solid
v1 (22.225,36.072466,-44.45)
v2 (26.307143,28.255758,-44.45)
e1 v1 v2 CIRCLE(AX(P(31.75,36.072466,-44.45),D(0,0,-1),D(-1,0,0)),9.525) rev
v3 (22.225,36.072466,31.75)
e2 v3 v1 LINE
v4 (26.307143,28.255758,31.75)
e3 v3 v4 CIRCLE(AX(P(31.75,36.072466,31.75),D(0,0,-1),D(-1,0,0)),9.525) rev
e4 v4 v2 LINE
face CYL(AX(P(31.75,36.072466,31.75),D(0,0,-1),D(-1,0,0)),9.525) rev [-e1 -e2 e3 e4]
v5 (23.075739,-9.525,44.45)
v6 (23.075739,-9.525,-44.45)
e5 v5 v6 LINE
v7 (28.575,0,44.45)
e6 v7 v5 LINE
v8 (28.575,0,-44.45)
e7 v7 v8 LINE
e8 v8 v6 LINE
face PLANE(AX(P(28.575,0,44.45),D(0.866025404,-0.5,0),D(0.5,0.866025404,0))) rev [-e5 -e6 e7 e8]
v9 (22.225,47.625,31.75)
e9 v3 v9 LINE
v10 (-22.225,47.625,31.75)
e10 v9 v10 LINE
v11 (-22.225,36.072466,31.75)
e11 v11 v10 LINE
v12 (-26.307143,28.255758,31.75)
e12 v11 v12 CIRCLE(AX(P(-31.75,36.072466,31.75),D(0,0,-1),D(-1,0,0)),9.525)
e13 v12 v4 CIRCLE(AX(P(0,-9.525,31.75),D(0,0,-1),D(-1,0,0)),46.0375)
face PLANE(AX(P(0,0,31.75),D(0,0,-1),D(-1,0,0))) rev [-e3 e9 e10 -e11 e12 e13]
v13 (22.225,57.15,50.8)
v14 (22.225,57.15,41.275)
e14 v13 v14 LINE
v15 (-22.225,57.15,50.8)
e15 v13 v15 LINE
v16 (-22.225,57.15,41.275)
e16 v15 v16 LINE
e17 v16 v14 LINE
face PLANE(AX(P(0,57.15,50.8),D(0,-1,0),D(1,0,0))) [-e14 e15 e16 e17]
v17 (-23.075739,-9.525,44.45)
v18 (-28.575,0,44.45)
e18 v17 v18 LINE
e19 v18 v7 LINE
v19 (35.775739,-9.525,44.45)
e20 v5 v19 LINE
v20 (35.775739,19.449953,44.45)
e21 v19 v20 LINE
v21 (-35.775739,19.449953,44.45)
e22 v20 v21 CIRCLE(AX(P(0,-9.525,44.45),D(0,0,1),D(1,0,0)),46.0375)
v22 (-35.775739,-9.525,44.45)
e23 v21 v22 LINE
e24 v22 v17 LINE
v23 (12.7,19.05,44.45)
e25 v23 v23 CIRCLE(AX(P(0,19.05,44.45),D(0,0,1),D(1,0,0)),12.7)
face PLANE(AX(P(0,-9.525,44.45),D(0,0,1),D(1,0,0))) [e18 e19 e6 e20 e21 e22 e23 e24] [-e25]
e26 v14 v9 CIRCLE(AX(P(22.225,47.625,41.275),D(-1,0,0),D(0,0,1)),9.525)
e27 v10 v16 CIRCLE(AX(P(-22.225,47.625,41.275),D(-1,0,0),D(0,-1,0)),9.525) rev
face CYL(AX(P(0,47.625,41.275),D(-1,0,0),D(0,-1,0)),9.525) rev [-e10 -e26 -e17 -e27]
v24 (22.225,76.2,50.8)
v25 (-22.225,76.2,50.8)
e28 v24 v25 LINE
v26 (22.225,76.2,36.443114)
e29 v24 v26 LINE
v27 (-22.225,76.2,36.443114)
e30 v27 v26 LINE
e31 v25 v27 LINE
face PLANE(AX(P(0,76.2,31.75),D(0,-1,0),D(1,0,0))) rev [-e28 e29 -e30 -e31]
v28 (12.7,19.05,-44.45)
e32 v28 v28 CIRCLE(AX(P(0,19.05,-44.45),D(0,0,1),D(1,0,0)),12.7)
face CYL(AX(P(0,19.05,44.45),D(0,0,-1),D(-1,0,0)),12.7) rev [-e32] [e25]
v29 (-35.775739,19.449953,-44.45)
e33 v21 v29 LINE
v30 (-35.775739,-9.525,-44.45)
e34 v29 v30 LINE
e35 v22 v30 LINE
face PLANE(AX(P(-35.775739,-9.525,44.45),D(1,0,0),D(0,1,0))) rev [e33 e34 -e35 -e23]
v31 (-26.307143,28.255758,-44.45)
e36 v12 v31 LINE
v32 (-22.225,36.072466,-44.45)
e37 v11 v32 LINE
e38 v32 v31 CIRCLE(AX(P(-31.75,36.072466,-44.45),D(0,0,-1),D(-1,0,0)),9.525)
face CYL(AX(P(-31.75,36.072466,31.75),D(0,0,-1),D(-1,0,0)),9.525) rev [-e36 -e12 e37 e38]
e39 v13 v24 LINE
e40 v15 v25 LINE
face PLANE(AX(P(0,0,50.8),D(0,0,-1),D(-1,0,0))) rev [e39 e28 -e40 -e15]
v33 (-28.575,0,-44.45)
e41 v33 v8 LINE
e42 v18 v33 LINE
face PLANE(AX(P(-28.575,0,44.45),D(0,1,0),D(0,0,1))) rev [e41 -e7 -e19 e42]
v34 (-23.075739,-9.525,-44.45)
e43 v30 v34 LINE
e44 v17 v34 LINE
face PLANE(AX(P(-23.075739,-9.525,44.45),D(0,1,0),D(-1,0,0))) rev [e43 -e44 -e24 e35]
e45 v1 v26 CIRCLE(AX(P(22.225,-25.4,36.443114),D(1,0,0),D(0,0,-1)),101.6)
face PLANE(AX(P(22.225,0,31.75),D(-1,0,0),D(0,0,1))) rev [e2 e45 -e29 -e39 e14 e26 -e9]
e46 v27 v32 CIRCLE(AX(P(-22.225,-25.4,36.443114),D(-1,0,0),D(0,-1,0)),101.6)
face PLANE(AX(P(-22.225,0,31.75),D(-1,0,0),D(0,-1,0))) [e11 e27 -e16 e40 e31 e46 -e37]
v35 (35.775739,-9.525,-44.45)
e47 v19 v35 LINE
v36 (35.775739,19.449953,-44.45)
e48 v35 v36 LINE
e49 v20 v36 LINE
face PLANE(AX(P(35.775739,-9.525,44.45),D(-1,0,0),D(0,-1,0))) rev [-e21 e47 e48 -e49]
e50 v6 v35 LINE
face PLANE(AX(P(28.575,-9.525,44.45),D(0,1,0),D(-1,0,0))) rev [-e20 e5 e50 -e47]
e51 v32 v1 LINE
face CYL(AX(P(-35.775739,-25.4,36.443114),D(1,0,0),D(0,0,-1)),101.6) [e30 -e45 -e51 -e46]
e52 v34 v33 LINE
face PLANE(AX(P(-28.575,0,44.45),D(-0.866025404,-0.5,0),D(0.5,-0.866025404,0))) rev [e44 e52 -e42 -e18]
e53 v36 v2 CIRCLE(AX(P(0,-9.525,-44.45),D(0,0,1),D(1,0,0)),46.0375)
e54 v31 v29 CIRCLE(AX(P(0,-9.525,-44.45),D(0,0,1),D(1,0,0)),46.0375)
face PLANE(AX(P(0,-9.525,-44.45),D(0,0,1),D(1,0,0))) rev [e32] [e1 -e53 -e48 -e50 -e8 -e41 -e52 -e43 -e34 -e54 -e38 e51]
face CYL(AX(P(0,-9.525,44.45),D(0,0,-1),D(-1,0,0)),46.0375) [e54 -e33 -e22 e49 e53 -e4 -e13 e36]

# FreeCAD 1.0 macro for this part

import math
import FreeCAD as App
import Part
import Sketcher

V = App.Vector
Q = App.Units.Quantity


def edges_at(feature, points):
    """Names of the edges that pass closest to the given points."""
    edges = feature.Shape.Edges
    near = lambda p: min(range(len(edges)), key=lambda i: edges[i].distToShape(Part.Vertex(*p))[0])
    return sorted({f"Edge{near(p) + 1}" for p in points})


def add_polygon(sketch, points):
    """Adds a closed chain of lines whose ends are joined by coincident constraints."""
    first, n = sketch.GeometryCount, len(points)
    for a, b in zip(points, points[1:] + points[:1]):
        sketch.addGeometry(Part.LineSegment(App.Vector(*a, 0), App.Vector(*b, 0)), False)
    for i in range(n):
        sketch.addConstraint(Sketcher.Constraint("Coincident", first + i, 2, first + (i + 1) % n, 1))

doc = App.newDocument("Part")
body = doc.addObject("PartDesign::Body", "Body")

# Sketch on XY plane
sketch1 = body.newObject("Sketcher::SketchObject", "Sketch")
sketch1.AttachmentSupport = (doc.getObject("XY_Plane"), [""])
sketch1.MapMode = "FlatFace"
sketch1.addGeometry([
    Part.LineSegment(V(-29, 0, 0), V(29, 0, 0)),  # 0
    Part.LineSegment(V(29, 0, 0), V(23, -10, 0)),  # 1
    Part.LineSegment(V(23, -10, 0), V(36, -10, 0)),  # 2
    Part.LineSegment(V(36, -10, 0), V(36, 19, 0)),  # 3
    Part.ArcOfCircle(Part.Circle(V(0, -10, 0), V(0, 0, 1), 46), math.radians(39), math.radians(141)),  # 4
    Part.LineSegment(V(-36, 19, 0), V(-36, -10, 0)),  # 5
    Part.LineSegment(V(-36, -10, 0), V(-23, -10, 0)),  # 6
    Part.LineSegment(V(-23, -10, 0), V(-29, 0, 0)),  # 7
    Part.Circle(V(0, 19, 0), V(0, 0, 1), 13),  # 8
], False)
sketch1.addConstraint([
    Sketcher.Constraint("Coincident", 0, 2, 1, 1),
    Sketcher.Constraint("Coincident", 1, 2, 2, 1),
    Sketcher.Constraint("Coincident", 2, 2, 3, 1),
    Sketcher.Constraint("Coincident", 3, 2, 4, 1),
    Sketcher.Constraint("Coincident", 4, 2, 5, 1),
    Sketcher.Constraint("Coincident", 5, 2, 6, 1),
    Sketcher.Constraint("Coincident", 6, 2, 7, 1),
    Sketcher.Constraint("Coincident", 7, 2, 0, 1),
    Sketcher.Constraint("Horizontal", 0),
    Sketcher.Constraint("Horizontal", 2),
    Sketcher.Constraint("Vertical", 3),
    Sketcher.Constraint("Vertical", 5),
    Sketcher.Constraint("Horizontal", 6),
    Sketcher.Constraint("Symmetric", 0, 2, 7, 2, -1, 1),
    Sketcher.Constraint("Symmetric", 3, 2, 4, 2, -2),
    Sketcher.Constraint("Symmetric", 1, 2, 6, 2, -2),
    Sketcher.Constraint("PointOnObject", 8, 3, -2),
    Sketcher.Constraint("Horizontal", 4, 3, 1, 2),
    Sketcher.Constraint("Diameter", 8, Q("1 in")),
    Sketcher.Constraint("DistanceX", 2, 1, 2, 2, Q("0.5 in")),
    Sketcher.Constraint("Angle", 1, Q("-120 deg")),
    Sketcher.Constraint("Radius", 4, Q("1.8125 in")),
    Sketcher.Constraint("DistanceX", 0, 1, 0, 2, Q("2.25 in")),
    Sketcher.Constraint("DistanceY", -1, 1, 8, 3, Q("0.75 in")),
    Sketcher.Constraint("DistanceY", 4, 3, -1, 1, Q("0.375 in")),
])
pad1 = body.newObject("PartDesign::Pad", "Pad")
pad1.Profile = sketch1
pad1.Length = Q("3.5 in")
pad1.Midplane = True

# Sketch on XY plane
sketch2 = body.newObject("Sketcher::SketchObject", "Sketch001")
sketch2.AttachmentSupport = (doc.getObject("XY_Plane"), [""])
sketch2.MapMode = "FlatFace"
sketch2.AttachmentOffset = App.Placement(V(0, 0, -1.75 * 25.4), App.Rotation())
sketch2.addGeometry([
    Part.ArcOfCircle(Part.Circle(V(-32, 36, 0), V(0, 0, 1), 10), math.radians(-55), math.radians(0)),  # 0
    Part.LineSegment(V(-22, 36, 0), V(-22, 76, 0)),  # 1
    Part.LineSegment(V(-22, 76, 0), V(22, 76, 0)),  # 2
    Part.LineSegment(V(22, 76, 0), V(22, 36, 0)),  # 3
    Part.ArcOfCircle(Part.Circle(V(32, 36, 0), V(0, 0, 1), 10), math.radians(180), math.radians(235)),  # 4
    Part.ArcOfCircle(Part.Circle(V(0, -10, 0), V(0, 0, 1), 46), math.radians(55), math.radians(125)),  # 5
], False)
sketch2.addConstraint([
    Sketcher.Constraint("Tangent", 0, 2, 1, 1),
    Sketcher.Constraint("Coincident", 1, 2, 2, 1),
    Sketcher.Constraint("Coincident", 2, 2, 3, 1),
    Sketcher.Constraint("Tangent", 3, 2, 4, 1),
    Sketcher.Constraint("Tangent", 4, 2, 5, 1),
    Sketcher.Constraint("Tangent", 5, 2, 0, 1),
    Sketcher.Constraint("Vertical", 1),
    Sketcher.Constraint("Horizontal", 2),
    Sketcher.Constraint("Vertical", 3),
    Sketcher.Constraint("Equal", 0, 4),
    Sketcher.Constraint("Symmetric", 0, 3, 4, 3, -2),
    Sketcher.Constraint("DistanceY", -1, 1, 1, 2, Q("3 in")),
    Sketcher.Constraint("Radius", 0, Q("0.375 in")),
    Sketcher.Constraint("Radius", 5, Q("1.8125 in")),
    Sketcher.Constraint("DistanceX", 2, 1, 2, 2, Q("1.75 in")),
    Sketcher.Constraint("DistanceY", 5, 3, -1, 1, Q("0.375 in")),
])
pad2 = body.newObject("PartDesign::Pad", "Pad001")
pad2.Profile = sketch2
pad2.Length = Q("3 in")

# Sketch on XY plane
sketch3 = body.newObject("Sketcher::SketchObject", "Sketch002")
sketch3.AttachmentSupport = (doc.getObject("XY_Plane"), [""])
sketch3.MapMode = "FlatFace"
sketch3.AttachmentOffset = App.Placement(V(0, 0, -1.75 * 25.4), App.Rotation())
add_polygon(sketch3, [(22, 76), (22, 57), (-22, 57), (-22, 76)])  # lines 0-3
sketch3.addConstraint([
    Sketcher.Constraint("Vertical", 0),
    Sketcher.Constraint("Horizontal", 1),
    Sketcher.Constraint("Vertical", 2),
    Sketcher.Constraint("Horizontal", 3),
    Sketcher.Constraint("DistanceY", -1, 1, 2, 2, Q("3 in")),
    Sketcher.Constraint("DistanceX", 1, 2, 1, 1, Q("1.75 in")),
    Sketcher.Constraint("DistanceY", 0, 2, 0, 1, Q("0.75 in")),
    Sketcher.Constraint("DistanceX", -1, 1, 0, 2, Q("0.875 in")),
])
pad3 = body.newObject("PartDesign::Pad", "Pad002")
pad3.Profile = sketch3
pad3.Length = Q("3.75 in")

# Sketch on YZ plane
sketch4 = body.newObject("Sketcher::SketchObject", "Sketch003")
sketch4.AttachmentSupport = (doc.getObject("YZ_Plane"), [""])
sketch4.MapMode = "FlatFace"
sketch4.AttachmentOffset = App.Placement(V(0, 0, 0.875 * 25.4), App.Rotation())
sketch4.addGeometry([
    Part.LineSegment(V(76, -44, 0), V(76, 36, 0)),
    Part.ArcOfCircle(Part.Circle(V(-25, 36, 0), V(0, 0, 1), 102), math.radians(-53), math.radians(0)),
    Part.LineSegment(V(36, -44, 0), V(76, -44, 0)),
], False)
sketch4.addConstraint([
    Sketcher.Constraint("Tangent", 0, 2, 1, 2),
    Sketcher.Constraint("Coincident", 1, 1, 2, 1),
    Sketcher.Constraint("Coincident", 2, 2, 0, 1),
    Sketcher.Constraint("Vertical", 0),
    Sketcher.Constraint("Horizontal", 2),
    Sketcher.Constraint("Radius", 1, Q("4 in")),
    Sketcher.Constraint("DistanceX", 1, 3, -1, 1, Q("1 in")),
    Sketcher.Constraint("DistanceY", 1, 1, -1, 1, Q("1.75 in")),
    Sketcher.Constraint("DistanceX", 2, 1, 2, 2, 40.127534),
])
pocket1 = body.newObject("PartDesign::Pocket", "Pocket")
pocket1.Profile = sketch4
pocket1.Type = "ThroughAll"
doc.recompute()

fillet = body.newObject("PartDesign::Fillet", "Fillet")
fillet.Base = (pocket1, edges_at(pocket1, [(0, 57.15, 31.75)]))
fillet.Radius = Q("0.375 in")

doc.recompute()
